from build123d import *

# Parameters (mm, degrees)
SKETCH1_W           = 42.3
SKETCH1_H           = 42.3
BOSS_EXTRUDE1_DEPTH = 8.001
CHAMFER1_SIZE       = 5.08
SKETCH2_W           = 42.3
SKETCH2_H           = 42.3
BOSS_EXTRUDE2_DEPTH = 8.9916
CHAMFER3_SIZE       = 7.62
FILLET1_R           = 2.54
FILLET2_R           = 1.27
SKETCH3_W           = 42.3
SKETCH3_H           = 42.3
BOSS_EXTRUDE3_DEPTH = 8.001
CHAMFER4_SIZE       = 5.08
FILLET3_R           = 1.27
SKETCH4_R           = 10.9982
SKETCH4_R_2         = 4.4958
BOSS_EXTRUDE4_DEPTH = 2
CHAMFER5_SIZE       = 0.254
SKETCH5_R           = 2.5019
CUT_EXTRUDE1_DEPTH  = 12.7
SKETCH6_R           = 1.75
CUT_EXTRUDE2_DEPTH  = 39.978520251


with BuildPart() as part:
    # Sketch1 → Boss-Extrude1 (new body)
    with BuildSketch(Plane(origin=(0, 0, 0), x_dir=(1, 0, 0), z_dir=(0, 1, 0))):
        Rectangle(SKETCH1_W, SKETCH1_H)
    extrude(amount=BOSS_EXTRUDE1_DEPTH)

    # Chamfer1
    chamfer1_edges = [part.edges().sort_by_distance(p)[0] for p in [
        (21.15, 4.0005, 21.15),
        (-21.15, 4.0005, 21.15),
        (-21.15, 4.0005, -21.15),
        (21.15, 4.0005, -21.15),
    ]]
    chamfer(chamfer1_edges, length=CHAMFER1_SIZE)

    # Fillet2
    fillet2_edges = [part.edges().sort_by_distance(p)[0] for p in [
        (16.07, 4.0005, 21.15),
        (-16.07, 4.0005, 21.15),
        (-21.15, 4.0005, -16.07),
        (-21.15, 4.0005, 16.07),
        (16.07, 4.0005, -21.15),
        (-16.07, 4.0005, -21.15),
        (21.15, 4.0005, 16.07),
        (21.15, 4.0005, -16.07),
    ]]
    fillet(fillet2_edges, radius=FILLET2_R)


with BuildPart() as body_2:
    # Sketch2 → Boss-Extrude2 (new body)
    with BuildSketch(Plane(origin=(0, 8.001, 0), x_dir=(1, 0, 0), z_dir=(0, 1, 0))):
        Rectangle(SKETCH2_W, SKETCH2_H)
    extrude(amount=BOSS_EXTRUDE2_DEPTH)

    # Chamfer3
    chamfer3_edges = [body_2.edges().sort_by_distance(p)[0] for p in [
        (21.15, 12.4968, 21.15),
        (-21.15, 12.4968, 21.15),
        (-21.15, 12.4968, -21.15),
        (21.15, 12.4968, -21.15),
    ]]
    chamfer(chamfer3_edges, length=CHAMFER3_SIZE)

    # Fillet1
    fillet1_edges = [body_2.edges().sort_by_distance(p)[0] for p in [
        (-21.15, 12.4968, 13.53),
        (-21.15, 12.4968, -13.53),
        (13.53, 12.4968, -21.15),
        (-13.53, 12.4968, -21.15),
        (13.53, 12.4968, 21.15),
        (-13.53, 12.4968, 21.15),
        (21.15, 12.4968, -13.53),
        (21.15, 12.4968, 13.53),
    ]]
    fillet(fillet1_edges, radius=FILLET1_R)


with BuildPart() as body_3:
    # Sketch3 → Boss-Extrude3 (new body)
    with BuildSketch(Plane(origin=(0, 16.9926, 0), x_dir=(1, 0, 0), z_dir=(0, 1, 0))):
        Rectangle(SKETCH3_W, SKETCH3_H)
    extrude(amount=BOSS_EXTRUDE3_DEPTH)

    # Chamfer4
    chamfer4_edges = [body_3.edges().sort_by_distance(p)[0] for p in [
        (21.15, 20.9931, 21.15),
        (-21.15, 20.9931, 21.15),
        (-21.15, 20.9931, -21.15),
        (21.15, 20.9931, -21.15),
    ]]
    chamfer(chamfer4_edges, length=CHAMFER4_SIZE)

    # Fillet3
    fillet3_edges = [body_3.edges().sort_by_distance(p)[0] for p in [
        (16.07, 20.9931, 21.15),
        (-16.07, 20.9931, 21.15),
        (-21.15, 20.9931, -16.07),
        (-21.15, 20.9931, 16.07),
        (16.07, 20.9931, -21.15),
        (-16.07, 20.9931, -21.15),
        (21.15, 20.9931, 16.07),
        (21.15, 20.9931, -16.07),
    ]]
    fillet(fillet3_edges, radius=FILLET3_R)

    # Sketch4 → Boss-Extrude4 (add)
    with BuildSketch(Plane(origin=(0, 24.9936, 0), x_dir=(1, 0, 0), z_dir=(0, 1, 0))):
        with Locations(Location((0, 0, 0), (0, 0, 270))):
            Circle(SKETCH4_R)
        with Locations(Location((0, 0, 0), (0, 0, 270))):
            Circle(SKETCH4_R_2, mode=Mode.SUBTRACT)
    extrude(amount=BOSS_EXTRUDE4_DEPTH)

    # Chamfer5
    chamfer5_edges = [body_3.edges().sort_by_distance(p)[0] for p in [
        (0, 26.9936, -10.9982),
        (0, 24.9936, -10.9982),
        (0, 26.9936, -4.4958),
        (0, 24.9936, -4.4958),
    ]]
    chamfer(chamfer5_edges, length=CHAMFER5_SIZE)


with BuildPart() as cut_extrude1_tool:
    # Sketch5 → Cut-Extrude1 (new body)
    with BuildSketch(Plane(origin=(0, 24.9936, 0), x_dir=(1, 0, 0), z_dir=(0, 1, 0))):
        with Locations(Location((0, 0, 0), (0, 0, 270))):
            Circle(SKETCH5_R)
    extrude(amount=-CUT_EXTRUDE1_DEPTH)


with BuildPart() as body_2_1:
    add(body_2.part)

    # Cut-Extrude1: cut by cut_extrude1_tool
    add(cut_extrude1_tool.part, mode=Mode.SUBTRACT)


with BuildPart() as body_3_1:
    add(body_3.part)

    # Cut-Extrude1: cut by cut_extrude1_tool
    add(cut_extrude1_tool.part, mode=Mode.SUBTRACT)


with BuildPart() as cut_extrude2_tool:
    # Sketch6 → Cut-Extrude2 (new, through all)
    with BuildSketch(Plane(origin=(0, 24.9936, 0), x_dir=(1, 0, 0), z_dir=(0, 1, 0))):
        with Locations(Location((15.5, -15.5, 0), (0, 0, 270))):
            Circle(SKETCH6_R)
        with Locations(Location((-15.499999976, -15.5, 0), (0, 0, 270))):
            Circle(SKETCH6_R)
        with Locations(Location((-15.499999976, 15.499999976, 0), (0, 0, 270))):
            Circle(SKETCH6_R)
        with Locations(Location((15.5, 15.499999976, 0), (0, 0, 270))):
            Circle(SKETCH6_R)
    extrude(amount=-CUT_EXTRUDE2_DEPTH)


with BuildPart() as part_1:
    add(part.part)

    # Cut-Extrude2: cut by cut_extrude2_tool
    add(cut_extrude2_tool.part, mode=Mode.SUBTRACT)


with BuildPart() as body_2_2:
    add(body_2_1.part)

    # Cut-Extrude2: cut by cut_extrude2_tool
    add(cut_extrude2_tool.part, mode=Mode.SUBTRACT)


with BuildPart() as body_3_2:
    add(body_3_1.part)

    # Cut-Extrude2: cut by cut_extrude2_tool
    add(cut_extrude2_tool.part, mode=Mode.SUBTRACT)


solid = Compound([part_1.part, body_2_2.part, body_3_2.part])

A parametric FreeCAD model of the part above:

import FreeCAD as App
import Part
import Sketcher

V = App.Vector
Q = App.Units.Quantity


def edges_at(feature, points):
    """Names of the edges that pass closest to the given points."""
    edges = feature.Shape.Edges
    near = lambda p: min(range(len(edges)), key=lambda i: edges[i].distToShape(Part.Vertex(*p))[0])
    return sorted({f"Edge{near(p) + 1}" for p in points})

doc = App.newDocument("Part")
params = doc.addObject("Spreadsheet::Sheet", "Params")
for row, (alias, value) in enumerate([
    ("pad1_length", "0.315 in"),
    ("chamfer_size", "0.2 in"),
    ("fillet_radius", "0.05 in"),
    ("pad2_length", "0.354 in"),
    ("chamfer2_size", "0.3 in"),
    ("fillet2_radius", "0.1 in"),
    ("pad3_length", "0.315 in"),
    ("chamfer3_size", "0.2 in"),
    ("fillet3_radius", "0.05 in"),
    ("sketch4_diameter", "0.866 in"),
    ("sketch4_diameter2", "0.354 in"),
    ("pad4_length", "2 mm"),
    ("chamfer4_size", "0.01 in"),
    ("sketch5_diameter", "0.197 in"),
    ("pad5_length", "0.5 in"),
    ("pad6_length", "39.97852 mm"),
], start=1):
    params.set(f"A{row}", alias)
    params.set(f"B{row}", "=" + value)
    params.setAlias(f"B{row}", alias)

body = doc.addObject("PartDesign::Body", "Body")

sketch1 = body.newObject("Sketcher::SketchObject", "Sketch")
sketch1.AttachmentSupport = (doc.getObject("XZ_Plane"), [""])
sketch1.MapMode = "FlatFace"
sketch1.addGeometry([
    Part.LineSegment(V(-21, -21, 0), V(-21, 21, 0)),
    Part.LineSegment(V(-21, 21, 0), V(21, 21, 0)),
    Part.LineSegment(V(21, 21, 0), V(21, -21, 0)),
    Part.LineSegment(V(21, -21, 0), V(-21, -21, 0)),
], False)
sketch1.addConstraint([
    Sketcher.Constraint("Coincident", 0, 2, 1, 1),
    Sketcher.Constraint("Coincident", 1, 2, 2, 1),
    Sketcher.Constraint("Coincident", 2, 2, 3, 1),
    Sketcher.Constraint("Coincident", 3, 2, 0, 1),
    Sketcher.Constraint("Vertical", 0),
    Sketcher.Constraint("Horizontal", 1),
    Sketcher.Constraint("Vertical", 2),
    Sketcher.Constraint("Horizontal", 3),
    Sketcher.Constraint("Symmetric", 0, 2, 2, 2, -1, 1),
    Sketcher.Constraint("Equal", 3, 0),
    Sketcher.Constraint("DistanceX", 1, 1, 1, 2, Q("42.3 mm")),
])
pad1 = body.newObject("PartDesign::Pad", "Pad")
pad1.Profile = sketch1
pad1.setExpression("Length", "Params.pad1_length")
pad1.Reversed = True
doc.recompute()

chamfer = body.newObject("PartDesign::Chamfer", "Chamfer")
chamfer.Base = (pad1, edges_at(pad1, [
    (21.15, 4, 21.15),
    (-21.15, 4, 21.15),
    (-21.15, 4, -21.15),
    (21.15, 4, -21.15),
]))
chamfer.setExpression("Size", "Params.chamfer_size")
doc.recompute()

fillet = body.newObject("PartDesign::Fillet", "Fillet")
fillet.Base = (chamfer, edges_at(chamfer, [
    (16.07, 4, 21.15),
    (-16.07, 4, 21.15),
    (-21.15, 4, -16.07),
    (-21.15, 4, 16.07),
    (16.07, 4, -21.15),
    (-16.07, 4, -21.15),
    (21.15, 4, 16.07),
    (21.15, 4, -16.07),
]))
fillet.setExpression("Radius", "Params.fillet_radius")
body2 = doc.addObject("PartDesign::Body", "Body001")

sketch2 = body2.newObject("Sketcher::SketchObject", "Sketch001")
sketch2.AttachmentSupport = (doc.getObject("XZ_Plane001"), [""])
sketch2.MapMode = "FlatFace"
sketch2.AttachmentOffset = App.Placement(V(0, 0, -0.315 * 25.4), App.Rotation())
sketch2.addGeometry([
    Part.LineSegment(V(-21, -21, 0), V(-21, 21, 0)),
    Part.LineSegment(V(-21, 21, 0), V(21, 21, 0)),
    Part.LineSegment(V(21, 21, 0), V(21, -21, 0)),
    Part.LineSegment(V(21, -21, 0), V(-21, -21, 0)),
], False)
sketch2.addConstraint([
    Sketcher.Constraint("Coincident", 0, 2, 1, 1),
    Sketcher.Constraint("Coincident", 1, 2, 2, 1),
    Sketcher.Constraint("Coincident", 2, 2, 3, 1),
    Sketcher.Constraint("Coincident", 3, 2, 0, 1),
    Sketcher.Constraint("Vertical", 0),
    Sketcher.Constraint("Horizontal", 1),
    Sketcher.Constraint("Vertical", 2),
    Sketcher.Constraint("Horizontal", 3),
    Sketcher.Constraint("Symmetric", 0, 2, 2, 2, -1, 1),
    Sketcher.Constraint("Equal", 3, 0),
    Sketcher.Constraint("DistanceX", 1, 1, 1, 2, Q("42.3 mm")),
])
pad2 = body2.newObject("PartDesign::Pad", "Pad001")
pad2.Profile = sketch2
pad2.setExpression("Length", "Params.pad2_length")
pad2.Reversed = True
doc.recompute()

chamfer2 = body2.newObject("PartDesign::Chamfer", "Chamfer001")
chamfer2.Base = (pad2, edges_at(pad2, [
    (21.15, 12.497, 21.15),
    (-21.15, 12.497, 21.15),
    (-21.15, 12.497, -21.15),
    (21.15, 12.497, -21.15),
]))
chamfer2.setExpression("Size", "Params.chamfer2_size")
doc.recompute()

fillet2 = body2.newObject("PartDesign::Fillet", "Fillet001")
fillet2.Base = (chamfer2, edges_at(chamfer2, [
    (-21.15, 12.497, 13.53),
    (-21.15, 12.497, -13.53),
    (13.53, 12.497, -21.15),
    (-13.53, 12.497, -21.15),
    (13.53, 12.497, 21.15),
    (-13.53, 12.497, 21.15),
    (21.15, 12.497, -13.53),
    (21.15, 12.497, 13.53),
]))
fillet2.setExpression("Radius", "Params.fillet2_radius")
body3 = doc.addObject("PartDesign::Body", "Body002")

sketch3 = body3.newObject("Sketcher::SketchObject", "Sketch002")
sketch3.AttachmentSupport = (doc.getObject("XZ_Plane002"), [""])
sketch3.MapMode = "FlatFace"
sketch3.AttachmentOffset = App.Placement(V(0, 0, -0.669 * 25.4), App.Rotation())
sketch3.addGeometry([
    Part.LineSegment(V(-21, -21, 0), V(-21, 21, 0)),
    Part.LineSegment(V(-21, 21, 0), V(21, 21, 0)),
    Part.LineSegment(V(21, 21, 0), V(21, -21, 0)),
    Part.LineSegment(V(21, -21, 0), V(-21, -21, 0)),
], False)
sketch3.addConstraint([
    Sketcher.Constraint("Coincident", 0, 2, 1, 1),
    Sketcher.Constraint("Coincident", 1, 2, 2, 1),
    Sketcher.Constraint("Coincident", 2, 2, 3, 1),
    Sketcher.Constraint("Coincident", 3, 2, 0, 1),
    Sketcher.Constraint("Vertical", 0),
    Sketcher.Constraint("Horizontal", 1),
    Sketcher.Constraint("Vertical", 2),
    Sketcher.Constraint("Horizontal", 3),
    Sketcher.Constraint("Symmetric", 0, 2, 2, 2, -1, 1),
    Sketcher.Constraint("Equal", 3, 0),
    Sketcher.Constraint("DistanceX", 1, 1, 1, 2, Q("42.3 mm")),
])
pad3 = body3.newObject("PartDesign::Pad", "Pad002")
pad3.Profile = sketch3
pad3.setExpression("Length", "Params.pad3_length")
pad3.Reversed = True
doc.recompute()

chamfer3 = body3.newObject("PartDesign::Chamfer", "Chamfer002")
chamfer3.Base = (pad3, edges_at(pad3, [
    (21.15, 20.993, 21.15),
    (-21.15, 20.993, 21.15),
    (-21.15, 20.993, -21.15),
    (21.15, 20.993, -21.15),
]))
chamfer3.setExpression("Size", "Params.chamfer3_size")
doc.recompute()

fillet3 = body3.newObject("PartDesign::Fillet", "Fillet002")
fillet3.Base = (chamfer3, edges_at(chamfer3, [
    (16.07, 20.993, 21.15),
    (-16.07, 20.993, 21.15),
    (-21.15, 20.993, -16.07),
    (-21.15, 20.993, 16.07),
    (16.07, 20.993, -21.15),
    (-16.07, 20.993, -21.15),
    (21.15, 20.993, 16.07),
    (21.15, 20.993, -16.07),
]))
fillet3.setExpression("Radius", "Params.fillet3_radius")

sketch4 = body3.newObject("Sketcher::SketchObject", "Sketch003")
sketch4.AttachmentSupport = (doc.getObject("XZ_Plane002"), [""])
sketch4.MapMode = "FlatFace"
sketch4.AttachmentOffset = App.Placement(V(0, 0, -0.984 * 25.4), App.Rotation())
sketch4.addGeometry([
    Part.Circle(V(0, 0, 0), V(0, 0, 1), 11),
    Part.Circle(V(0, 0, 0), V(0, 0, 1), 4.5),
], False)
sketch4.addConstraint([
    Sketcher.Constraint("Coincident", 0, 3, -1, 1),
    Sketcher.Constraint("Coincident", 1, 3, -1, 1),
    Sketcher.Constraint("Diameter", 0, Q("0.866 in")),
    Sketcher.Constraint("Diameter", 1, Q("0.354 in")),
])
sketch4.setExpression("Constraints[2]", "Params.sketch4_diameter")
sketch4.setExpression("Constraints[3]", "Params.sketch4_diameter2")
pad4 = body3.newObject("PartDesign::Pad", "Pad003")
pad4.Profile = sketch4
pad4.setExpression("Length", "Params.pad4_length")
pad4.Reversed = True
doc.recompute()

chamfer4 = body3.newObject("PartDesign::Chamfer", "Chamfer003")
chamfer4.Base = (pad4, edges_at(pad4, [
    (0, 26.994, -10.998),
    (0, 24.994, -10.998),
    (0, 26.994, -4.496),
    (0, 24.994, -4.496),
]))
chamfer4.setExpression("Size", "Params.chamfer4_size")
body4 = doc.addObject("PartDesign::Body", "Body003")

sketch5 = body4.newObject("Sketcher::SketchObject", "Sketch004")
sketch5.AttachmentSupport = (doc.getObject("XZ_Plane003"), [""])
sketch5.MapMode = "FlatFace"
sketch5.AttachmentOffset = App.Placement(V(0, 0, -0.984 * 25.4), App.Rotation())
sketch5.addGeometry(Part.Circle(V(0, 0, 0), V(0, 0, 1), 2.5), False)
sketch5.addConstraint([
    Sketcher.Constraint("Coincident", 0, 3, -1, 1),
    Sketcher.Constraint("Diameter", 0, Q("0.197 in")),
])
sketch5.setExpression("Constraints[1]", "Params.sketch5_diameter")
pad5 = body4.newObject("PartDesign::Pad", "Pad004")
pad5.Profile = sketch5
pad5.setExpression("Length", "Params.pad5_length")
doc.recompute()

body5 = doc.addObject("PartDesign::Body", "Body004")
body5.BaseFeature = body4
boolean = body2.newObject("PartDesign::Boolean", "Boolean")
boolean.Type = "Cut"
boolean.addObjects([body5])
doc.recompute()

boolean2 = body3.newObject("PartDesign::Boolean", "Boolean001")
boolean2.Type = "Cut"
boolean2.addObjects([body4])
body6 = doc.addObject("PartDesign::Body", "Body005")
body6.AllowCompound = True

sketch6 = body6.newObject("Sketcher::SketchObject", "Sketch005")
sketch6.AttachmentSupport = (doc.getObject("XZ_Plane005"), [""])
sketch6.MapMode = "FlatFace"
sketch6.AttachmentOffset = App.Placement(V(0, 0, -0.984 * 25.4), App.Rotation())
sketch6.addGeometry([
    Part.Circle(V(15.5, 15.5, 0), V(0, 0, 1), 1.8),
    Part.Circle(V(-15.5, 15.5, 0), V(0, 0, 1), 1.8),
    Part.Circle(V(-15.5, -15.5, 0), V(0, 0, 1), 1.8),
    Part.Circle(V(15.5, -15.5, 0), V(0, 0, 1), 1.8),
], False)
sketch6.addConstraint([
    Sketcher.Constraint("Equal", 0, 1),
    Sketcher.Constraint("Equal", 1, 2),
    Sketcher.Constraint("Equal", 2, 3),
    Sketcher.Constraint("Symmetric", 0, 3, 2, 3, -1, 1),
    Sketcher.Constraint("Symmetric", 1, 3, 3, 3, -1, 1),
    Sketcher.Constraint("Symmetric", 0, 3, 1, 3, -2),
    Sketcher.Constraint("Diameter", 0, Q("3.5 mm")),
    Sketcher.Constraint("DistanceX", -1, 1, 0, 3, Q("15.5 mm")),
    Sketcher.Constraint("DistanceY", -1, 1, 0, 3, Q("15.5 mm")),
])
pad6 = body6.newObject("PartDesign::Pad", "Pad005")
pad6.Profile = sketch6
pad6.setExpression("Length", "Params.pad6_length")
doc.recompute()

body7 = doc.addObject("PartDesign::Body", "Body006")
body7.BaseFeature = body6
boolean3 = body.newObject("PartDesign::Boolean", "Boolean002")
boolean3.Type = "Cut"
boolean3.addObjects([body7])
doc.recompute()

body8 = doc.addObject("PartDesign::Body", "Body007")
body8.BaseFeature = body6
boolean4 = body2.newObject("PartDesign::Boolean", "Boolean003")
boolean4.Type = "Cut"
boolean4.addObjects([body8])
doc.recompute()

boolean5 = body3.newObject("PartDesign::Boolean", "Boolean004")
boolean5.Type = "Cut"
boolean5.addObjects([body6])

doc.recompute()
